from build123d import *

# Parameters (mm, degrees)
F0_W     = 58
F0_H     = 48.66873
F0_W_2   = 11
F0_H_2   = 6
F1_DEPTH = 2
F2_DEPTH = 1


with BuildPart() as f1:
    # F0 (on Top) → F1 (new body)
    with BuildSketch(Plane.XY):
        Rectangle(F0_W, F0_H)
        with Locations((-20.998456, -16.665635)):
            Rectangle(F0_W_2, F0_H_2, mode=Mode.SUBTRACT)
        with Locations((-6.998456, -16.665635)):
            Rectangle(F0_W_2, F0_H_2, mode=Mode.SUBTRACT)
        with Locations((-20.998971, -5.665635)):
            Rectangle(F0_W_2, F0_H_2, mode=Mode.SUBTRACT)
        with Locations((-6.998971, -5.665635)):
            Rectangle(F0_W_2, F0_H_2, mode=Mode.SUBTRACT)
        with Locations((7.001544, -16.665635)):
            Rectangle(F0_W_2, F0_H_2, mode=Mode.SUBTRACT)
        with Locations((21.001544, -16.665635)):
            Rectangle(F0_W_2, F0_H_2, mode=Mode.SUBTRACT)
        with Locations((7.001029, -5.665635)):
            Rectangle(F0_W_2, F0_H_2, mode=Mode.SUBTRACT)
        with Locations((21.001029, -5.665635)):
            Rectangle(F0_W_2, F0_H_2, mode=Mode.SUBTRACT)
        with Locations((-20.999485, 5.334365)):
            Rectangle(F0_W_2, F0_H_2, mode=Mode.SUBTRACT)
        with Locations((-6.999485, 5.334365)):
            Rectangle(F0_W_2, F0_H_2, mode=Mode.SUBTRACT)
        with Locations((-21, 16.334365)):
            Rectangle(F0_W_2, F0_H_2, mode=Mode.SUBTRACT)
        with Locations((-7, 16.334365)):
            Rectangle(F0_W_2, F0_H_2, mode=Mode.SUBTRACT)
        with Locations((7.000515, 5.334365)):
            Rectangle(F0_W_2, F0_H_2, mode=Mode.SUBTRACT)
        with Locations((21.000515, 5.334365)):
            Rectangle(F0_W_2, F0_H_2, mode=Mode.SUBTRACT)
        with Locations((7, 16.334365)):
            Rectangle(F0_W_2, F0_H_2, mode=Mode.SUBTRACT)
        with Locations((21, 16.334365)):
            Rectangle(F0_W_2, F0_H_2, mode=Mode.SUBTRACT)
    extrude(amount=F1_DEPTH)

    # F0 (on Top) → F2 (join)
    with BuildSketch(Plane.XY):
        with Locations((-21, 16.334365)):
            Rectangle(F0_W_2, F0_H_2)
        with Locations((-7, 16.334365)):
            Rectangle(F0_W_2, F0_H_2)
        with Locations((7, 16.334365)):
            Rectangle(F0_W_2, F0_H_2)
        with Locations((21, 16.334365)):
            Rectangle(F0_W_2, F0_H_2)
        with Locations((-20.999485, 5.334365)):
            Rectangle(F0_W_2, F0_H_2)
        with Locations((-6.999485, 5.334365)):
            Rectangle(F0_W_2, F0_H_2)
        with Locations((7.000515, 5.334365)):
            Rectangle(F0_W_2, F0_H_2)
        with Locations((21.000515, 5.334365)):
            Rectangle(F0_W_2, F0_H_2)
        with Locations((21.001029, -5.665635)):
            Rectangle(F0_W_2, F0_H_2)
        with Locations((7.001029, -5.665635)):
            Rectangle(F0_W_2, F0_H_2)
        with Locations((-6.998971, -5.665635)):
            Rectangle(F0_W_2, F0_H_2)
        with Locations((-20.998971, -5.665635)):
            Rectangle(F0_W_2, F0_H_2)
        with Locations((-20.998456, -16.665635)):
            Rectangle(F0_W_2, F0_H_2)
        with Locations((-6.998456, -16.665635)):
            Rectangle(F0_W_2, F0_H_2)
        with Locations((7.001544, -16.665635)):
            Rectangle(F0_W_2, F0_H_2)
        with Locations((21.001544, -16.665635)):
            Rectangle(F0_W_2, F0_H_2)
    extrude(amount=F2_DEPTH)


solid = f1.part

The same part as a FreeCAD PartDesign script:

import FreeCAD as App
import Part
import Sketcher

V = App.Vector


def add_polygon(sketch, points):
    """Adds a closed chain of lines whose ends are joined by coincident constraints."""
    first, n = sketch.GeometryCount, len(points)
    for a, b in zip(points, points[1:] + points[:1]):
        sketch.addGeometry(Part.LineSegment(App.Vector(*a, 0), App.Vector(*b, 0)), False)
    for i in range(n):
        sketch.addConstraint(Sketcher.Constraint("Coincident", first + i, 2, first + (i + 1) % n, 1))

doc = App.newDocument("Part")
body = doc.addObject("PartDesign::Body", "Body")

# Sketch on XY plane
sketch1 = doc.addObject("Sketcher::SketchObject", "Sketch")
body.addObject(sketch1)
sketch1.AttachmentSupport = (doc.XY_Plane, [""])
sketch1.MapMode = "FlatFace"
add_polygon(sketch1, [(-29, 24), (-29, -24), (29, -24), (29, 24)])  # lines 0-3
add_polygon(sketch1, [(-15, -20), (-26, -20), (-26, -14), (-15, -14)])  # lines 4-7
add_polygon(sketch1, [(-1, -20), (-12, -20), (-12, -14), (-1, -14)])  # lines 8-11
add_polygon(sketch1, [(-15, -9), (-26, -9), (-26, -3), (-15, -3)])  # lines 12-15
add_polygon(sketch1, [(-1, -9), (-12, -9), (-12, -3), (-1, -3)])  # lines 16-19
add_polygon(sketch1, [(13, -20), (2, -20), (2, -14), (13, -14)])  # lines 20-23
add_polygon(sketch1, [(27, -20), (16, -20), (16, -14), (27, -14)])  # lines 24-27
add_polygon(sketch1, [(13, -9), (2, -9), (2, -3), (13, -3)])  # lines 28-31
add_polygon(sketch1, [(27, -9), (16, -9), (16, -3), (27, -3)])  # lines 32-35
add_polygon(sketch1, [(-15, 2), (-26, 2), (-26, 8), (-15, 8)])  # lines 36-39
add_polygon(sketch1, [(-1, 2), (-12, 2), (-12, 8), (-1, 8)])  # lines 40-43
add_polygon(sketch1, [(-16, 13), (-26, 13), (-26, 19), (-16, 19)])  # lines 44-47
add_polygon(sketch1, [(-2, 13), (-12, 13), (-12, 19), (-2, 19)])  # lines 48-51
add_polygon(sketch1, [(13, 2), (2, 2), (2, 8), (13, 8)])  # lines 52-55
add_polygon(sketch1, [(27, 2), (16, 2), (16, 8), (27, 8)])  # lines 56-59
add_polygon(sketch1, [(12, 13), (2, 13), (2, 19), (12, 19)])  # lines 60-63
add_polygon(sketch1, [(26, 13), (16, 13), (16, 19), (26, 19)])  # lines 64-67
sketch1.addConstraint([
    Sketcher.Constraint("Vertical", 0),
    Sketcher.Constraint("Horizontal", 1),
    Sketcher.Constraint("Vertical", 2),
    Sketcher.Constraint("Horizontal", 3),
    Sketcher.Constraint("Horizontal", 4),
    Sketcher.Constraint("Vertical", 5),
    Sketcher.Constraint("Horizontal", 6),
    Sketcher.Constraint("Vertical", 7),
    Sketcher.Constraint("Horizontal", 8),
    Sketcher.Constraint("Vertical", 9),
    Sketcher.Constraint("Horizontal", 10),
    Sketcher.Constraint("Vertical", 11),
    Sketcher.Constraint("Horizontal", 12),
    Sketcher.Constraint("Vertical", 13),
    Sketcher.Constraint("Horizontal", 14),
    Sketcher.Constraint("Vertical", 15),
    Sketcher.Constraint("Horizontal", 16),
    Sketcher.Constraint("Vertical", 17),
    Sketcher.Constraint("Horizontal", 18),
    Sketcher.Constraint("Vertical", 19),
    Sketcher.Constraint("Horizontal", 20),
    Sketcher.Constraint("Vertical", 21),
    Sketcher.Constraint("Horizontal", 22),
    Sketcher.Constraint("Vertical", 23),
    Sketcher.Constraint("Horizontal", 24),
    Sketcher.Constraint("Vertical", 25),
    Sketcher.Constraint("Horizontal", 26),
    Sketcher.Constraint("Vertical", 27),
    Sketcher.Constraint("Horizontal", 28),
    Sketcher.Constraint("Vertical", 29),
    Sketcher.Constraint("Horizontal", 30),
    Sketcher.Constraint("Vertical", 31),
    Sketcher.Constraint("Horizontal", 32),
    Sketcher.Constraint("Vertical", 33),
    Sketcher.Constraint("Horizontal", 34),
    Sketcher.Constraint("Vertical", 35),
    Sketcher.Constraint("Horizontal", 36),
    Sketcher.Constraint("Vertical", 37),
    Sketcher.Constraint("Horizontal", 38),
    Sketcher.Constraint("Vertical", 39),
    Sketcher.Constraint("Horizontal", 40),
    Sketcher.Constraint("Vertical", 41),
    Sketcher.Constraint("Horizontal", 42),
    Sketcher.Constraint("Vertical", 43),
    Sketcher.Constraint("Horizontal", 44),
    Sketcher.Constraint("Vertical", 45),
    Sketcher.Constraint("Horizontal", 46),
    Sketcher.Constraint("Vertical", 47),
    Sketcher.Constraint("Horizontal", 48),
    Sketcher.Constraint("Vertical", 49),
    Sketcher.Constraint("Horizontal", 50),
    Sketcher.Constraint("Vertical", 51),
    Sketcher.Constraint("Horizontal", 52),
    Sketcher.Constraint("Vertical", 53),
    Sketcher.Constraint("Horizontal", 54),
    Sketcher.Constraint("Vertical", 55),
    Sketcher.Constraint("Horizontal", 56),
    Sketcher.Constraint("Vertical", 57),
    Sketcher.Constraint("Horizontal", 58),
    Sketcher.Constraint("Vertical", 59),
    Sketcher.Constraint("Horizontal", 60),
    Sketcher.Constraint("Vertical", 61),
    Sketcher.Constraint("Horizontal", 62),
    Sketcher.Constraint("Vertical", 63),
    Sketcher.Constraint("Horizontal", 64),
    Sketcher.Constraint("Vertical", 65),
    Sketcher.Constraint("Horizontal", 66),
    Sketcher.Constraint("Vertical", 67),
    Sketcher.Constraint("Symmetric", 0, 2, 2, 2, -1, 1),
    Sketcher.Constraint("Symmetric", 51, 2, 60, 2, -2),
    Sketcher.Constraint("Symmetric", 49, 2, 62, 2, -2),
    Sketcher.Constraint("Symmetric", 47, 2, 64, 2, -2),
    Sketcher.Constraint("Symmetric", 45, 2, 66, 2, -2),
    Sketcher.Constraint("Horizontal", 7, 2, 8, 2),
    Sketcher.Constraint("Horizontal", 6, 2, 9, 2),
    Sketcher.Constraint("Horizontal", 15, 2, 16, 2),
    Sketcher.Constraint("Horizontal", 14, 2, 17, 2),
    Sketcher.Constraint("Horizontal", 11, 2, 20, 2),
    Sketcher.Constraint("Horizontal", 10, 2, 21, 2),
    Sketcher.Constraint("Horizontal", 23, 2, 24, 2),
    Sketcher.Constraint("Horizontal", 22, 2, 25, 2),
    Sketcher.Constraint("Horizontal", 19, 2, 28, 2),
    Sketcher.Constraint("Horizontal", 18, 2, 29, 2),
    Sketcher.Constraint("Horizontal", 31, 2, 32, 2),
    Sketcher.Constraint("Horizontal", 30, 2, 33, 2),
    Sketcher.Constraint("Horizontal", 39, 2, 40, 2),
    Sketcher.Constraint("Horizontal", 38, 2, 41, 2),
    Sketcher.Constraint("Horizontal", 47, 2, 48, 2),
    Sketcher.Constraint("Horizontal", 46, 2, 49, 2),
    Sketcher.Constraint("Horizontal", 43, 2, 52, 2),
    Sketcher.Constraint("Horizontal", 42, 2, 53, 2),
    Sketcher.Constraint("Horizontal", 55, 2, 56, 2),
    Sketcher.Constraint("Horizontal", 54, 2, 57, 2),
    Sketcher.Constraint("Equal", 6, 8),
    Sketcher.Constraint("Equal", 10, 12),
    Sketcher.Constraint("Equal", 14, 16),
    Sketcher.Constraint("Equal", 18, 20),
    Sketcher.Constraint("Equal", 22, 24),
    Sketcher.Constraint("Equal", 26, 28),
    Sketcher.Constraint("Equal", 30, 32),
    Sketcher.Constraint("Equal", 34, 36),
    Sketcher.Constraint("Equal", 38, 40),
    Sketcher.Constraint("Equal", 42, 44),
    Sketcher.Constraint("Equal", 46, 48),
    Sketcher.Constraint("Equal", 50, 52),
    Sketcher.Constraint("Equal", 54, 56),
    Sketcher.Constraint("Equal", 11, 13),
    Sketcher.Constraint("Equal", 35, 37),
    Sketcher.Constraint("Equal", 43, 45),
    Sketcher.Constraint("DistanceX", 1, 1, 1, 2, 58.0),
    Sketcher.Constraint("DistanceX", 4, 2, 4, 1, 11.0),
    Sketcher.Constraint("DistanceY", 5, 1, 5, 2, 6.0),
    Sketcher.Constraint("DistanceX", 44, 2, -1, 1, 26.5),
    Sketcher.Constraint("DistanceX", 48, 2, -1, 1, 12.5),
    Sketcher.Constraint("DistanceY", 0, 2, 0, 1, 48.66873),
    Sketcher.Constraint("DistanceX", 12, 2, -1, 1, 26.498971),
    Sketcher.Constraint("DistanceX", 16, 2, -1, 1, 12.498971),
    Sketcher.Constraint("DistanceX", -1, 1, 28, 2, 1.501029),
    Sketcher.Constraint("DistanceX", -1, 1, 32, 2, 15.501029),
    Sketcher.Constraint("DistanceX", 4, 2, -1, 1, 26.498456),
    Sketcher.Constraint("DistanceY", 4, 2, -1, 1, 19.665635),
    Sketcher.Constraint("DistanceX", 8, 2, -1, 1, 12.498456),
    Sketcher.Constraint("DistanceY", 12, 2, -1, 1, 8.665635),
    Sketcher.Constraint("DistanceX", -1, 1, 20, 2, 1.501544),
    Sketcher.Constraint("DistanceX", -1, 1, 24, 2, 15.501544),
    Sketcher.Constraint("DistanceX", 36, 2, -1, 1, 26.499485),
    Sketcher.Constraint("DistanceY", -1, 1, 36, 2, 2.334365),
    Sketcher.Constraint("DistanceX", 40, 2, -1, 1, 12.499485),
    Sketcher.Constraint("DistanceY", -1, 1, 44, 2, 13.334365),
    Sketcher.Constraint("DistanceX", -1, 1, 52, 2, 1.500515),
    Sketcher.Constraint("DistanceX", -1, 1, 56, 2, 15.500515),
])
pad1 = doc.addObject("PartDesign::Pad", "Pad")
body.addObject(pad1)
pad1.Profile = sketch1
pad1.Length = 2

# Sketch on XY plane
sketch2 = doc.addObject("Sketcher::SketchObject", "Sketch001")
body.addObject(sketch2)
sketch2.AttachmentSupport = (doc.XY_Plane, [""])
sketch2.MapMode = "FlatFace"
add_polygon(sketch2, [(-26, 19), (-26, 13), (-16, 13), (-16, 19)])  # lines 0-3
add_polygon(sketch2, [(-12, 19), (-12, 13), (-2, 13), (-2, 19)])  # lines 4-7
add_polygon(sketch2, [(2, 19), (2, 13), (12, 13), (12, 19)])  # lines 8-11
add_polygon(sketch2, [(16, 19), (16, 13), (26, 13), (26, 19)])  # lines 12-15
add_polygon(sketch2, [(-26, 8), (-26, 2), (-15, 2), (-15, 8)])  # lines 16-19
add_polygon(sketch2, [(-12, 8), (-12, 2), (-1, 2), (-1, 8)])  # lines 20-23
add_polygon(sketch2, [(2, 8), (2, 2), (13, 2), (13, 8)])  # lines 24-27
add_polygon(sketch2, [(16, 8), (16, 2), (27, 2), (27, 8)])  # lines 28-31
add_polygon(sketch2, [(16, -3), (16, -9), (27, -9), (27, -3)])  # lines 32-35
add_polygon(sketch2, [(2, -3), (2, -9), (13, -9), (13, -3)])  # lines 36-39
add_polygon(sketch2, [(-12, -3), (-12, -9), (-1, -9), (-1, -3)])  # lines 40-43
add_polygon(sketch2, [(-26, -3), (-26, -9), (-15, -9), (-15, -3)])  # lines 44-47
add_polygon(sketch2, [(-26, -14), (-26, -20), (-15, -20), (-15, -14)])  # lines 48-51
add_polygon(sketch2, [(-12, -14), (-12, -20), (-1, -20), (-1, -14)])  # lines 52-55
add_polygon(sketch2, [(2, -14), (2, -20), (13, -20), (13, -14)])  # lines 56-59
add_polygon(sketch2, [(16, -14), (16, -20), (27, -20), (27, -14)])  # lines 60-63
sketch2.addConstraint([
    Sketcher.Constraint("Vertical", 0),
    Sketcher.Constraint("Horizontal", 1),
    Sketcher.Constraint("Vertical", 2),
    Sketcher.Constraint("Horizontal", 3),
    Sketcher.Constraint("Vertical", 4),
    Sketcher.Constraint("Horizontal", 5),
    Sketcher.Constraint("Vertical", 6),
    Sketcher.Constraint("Horizontal", 7),
    Sketcher.Constraint("Vertical", 8),
    Sketcher.Constraint("Horizontal", 9),
    Sketcher.Constraint("Vertical", 10),
    Sketcher.Constraint("Horizontal", 11),
    Sketcher.Constraint("Vertical", 12),
    Sketcher.Constraint("Horizontal", 13),
    Sketcher.Constraint("Vertical", 14),
    Sketcher.Constraint("Horizontal", 15),
    Sketcher.Constraint("Vertical", 16),
    Sketcher.Constraint("Horizontal", 17),
    Sketcher.Constraint("Vertical", 18),
    Sketcher.Constraint("Horizontal", 19),
    Sketcher.Constraint("Vertical", 20),
    Sketcher.Constraint("Horizontal", 21),
    Sketcher.Constraint("Vertical", 22),
    Sketcher.Constraint("Horizontal", 23),
    Sketcher.Constraint("Vertical", 24),
    Sketcher.Constraint("Horizontal", 25),
    Sketcher.Constraint("Vertical", 26),
    Sketcher.Constraint("Horizontal", 27),
    Sketcher.Constraint("Vertical", 28),
    Sketcher.Constraint("Horizontal", 29),
    Sketcher.Constraint("Vertical", 30),
    Sketcher.Constraint("Horizontal", 31),
    Sketcher.Constraint("Vertical", 32),
    Sketcher.Constraint("Horizontal", 33),
    Sketcher.Constraint("Vertical", 34),
    Sketcher.Constraint("Horizontal", 35),
    Sketcher.Constraint("Vertical", 36),
    Sketcher.Constraint("Horizontal", 37),
    Sketcher.Constraint("Vertical", 38),
    Sketcher.Constraint("Horizontal", 39),
    Sketcher.Constraint("Vertical", 40),
    Sketcher.Constraint("Horizontal", 41),
    Sketcher.Constraint("Vertical", 42),
    Sketcher.Constraint("Horizontal", 43),
    Sketcher.Constraint("Vertical", 44),
    Sketcher.Constraint("Horizontal", 45),
    Sketcher.Constraint("Vertical", 46),
    Sketcher.Constraint("Horizontal", 47),
    Sketcher.Constraint("Vertical", 48),
    Sketcher.Constraint("Horizontal", 49),
    Sketcher.Constraint("Vertical", 50),
    Sketcher.Constraint("Horizontal", 51),
    Sketcher.Constraint("Vertical", 52),
    Sketcher.Constraint("Horizontal", 53),
    Sketcher.Constraint("Vertical", 54),
    Sketcher.Constraint("Horizontal", 55),
    Sketcher.Constraint("Vertical", 56),
    Sketcher.Constraint("Horizontal", 57),
    Sketcher.Constraint("Vertical", 58),
    Sketcher.Constraint("Horizontal", 59),
    Sketcher.Constraint("Vertical", 60),
    Sketcher.Constraint("Horizontal", 61),
    Sketcher.Constraint("Vertical", 62),
    Sketcher.Constraint("Horizontal", 63),
    Sketcher.Constraint("Symmetric", 5, 2, 8, 2, -2),
    Sketcher.Constraint("Symmetric", 7, 2, 10, 2, -2),
    Sketcher.Constraint("Symmetric", 1, 2, 12, 2, -2),
    Sketcher.Constraint("Symmetric", 3, 2, 14, 2, -2),
    Sketcher.Constraint("Horizontal", 1, 2, 4, 2),
    Sketcher.Constraint("Horizontal", 3, 2, 6, 2),
    Sketcher.Constraint("Horizontal", 17, 2, 20, 2),
    Sketcher.Constraint("Horizontal", 19, 2, 22, 2),
    Sketcher.Constraint("Horizontal", 21, 2, 24, 2),
    Sketcher.Constraint("Horizontal", 23, 2, 26, 2),
    Sketcher.Constraint("Horizontal", 25, 2, 28, 2),
    Sketcher.Constraint("Horizontal", 27, 2, 30, 2),
    Sketcher.Constraint("Horizontal", 33, 2, 36, 2),
    Sketcher.Constraint("Horizontal", 35, 2, 38, 2),
    Sketcher.Constraint("Horizontal", 37, 2, 40, 2),
    Sketcher.Constraint("Horizontal", 39, 2, 42, 2),
    Sketcher.Constraint("Horizontal", 41, 2, 44, 2),
    Sketcher.Constraint("Horizontal", 43, 2, 46, 2),
    Sketcher.Constraint("Horizontal", 49, 2, 52, 2),
    Sketcher.Constraint("Horizontal", 51, 2, 54, 2),
    Sketcher.Constraint("Horizontal", 53, 2, 56, 2),
    Sketcher.Constraint("Horizontal", 55, 2, 58, 2),
    Sketcher.Constraint("Horizontal", 57, 2, 60, 2),
    Sketcher.Constraint("Horizontal", 59, 2, 62, 2),
    Sketcher.Constraint("Equal", 3, 5),
    Sketcher.Constraint("Equal", 15, 17),
    Sketcher.Constraint("Equal", 19, 21),
    Sketcher.Constraint("Equal", 23, 25),
    Sketcher.Constraint("Equal", 27, 29),
    Sketcher.Constraint("Equal", 31, 33),
    Sketcher.Constraint("Equal", 35, 37),
    Sketcher.Constraint("Equal", 39, 41),
    Sketcher.Constraint("Equal", 43, 45),
    Sketcher.Constraint("Equal", 47, 49),
    Sketcher.Constraint("Equal", 51, 53),
    Sketcher.Constraint("Equal", 55, 57),
    Sketcher.Constraint("Equal", 59, 61),
    Sketcher.Constraint("Equal", 14, 16),
    Sketcher.Constraint("Equal", 30, 32),
    Sketcher.Constraint("Equal", 46, 48),
    Sketcher.Constraint("DistanceX", 1, 1, 1, 2, 11.0),
    Sketcher.Constraint("DistanceY", 0, 2, 0, 1, 6.0),
    Sketcher.Constraint("DistanceX", 0, 2, -1, 1, 26.5),
    Sketcher.Constraint("DistanceX", 4, 2, -1, 1, 12.5),
    Sketcher.Constraint("DistanceX", -1, 1, 32, 2, 15.501029),
    Sketcher.Constraint("DistanceX", -1, 1, 36, 2, 1.501029),
    Sketcher.Constraint("DistanceX", 40, 2, -1, 1, 12.498971),
    Sketcher.Constraint("DistanceX", 44, 2, -1, 1, 26.498971),
    Sketcher.Constraint("DistanceY", -1, 1, 0, 2, 13.334365),
    Sketcher.Constraint("DistanceX", 16, 2, -1, 1, 26.499485),
    Sketcher.Constraint("DistanceY", -1, 1, 16, 2, 2.334365),
    Sketcher.Constraint("DistanceX", 20, 2, -1, 1, 12.499485),
    Sketcher.Constraint("DistanceX", -1, 1, 24, 2, 1.500515),
    Sketcher.Constraint("DistanceX", -1, 1, 28, 2, 15.500515),
    Sketcher.Constraint("DistanceY", 32, 2, -1, 1, 8.665635),
    Sketcher.Constraint("DistanceX", 48, 2, -1, 1, 26.498456),
    Sketcher.Constraint("DistanceY", 48, 2, -1, 1, 19.665635),
    Sketcher.Constraint("DistanceX", 52, 2, -1, 1, 12.498456),
    Sketcher.Constraint("DistanceX", -1, 1, 56, 2, 1.501544),
    Sketcher.Constraint("DistanceX", -1, 1, 60, 2, 15.501544),
])
pad2 = doc.addObject("PartDesign::Pad", "Pad001")
body.addObject(pad2)
pad2.Profile = sketch2
pad2.Length = 1

doc.recompute()
